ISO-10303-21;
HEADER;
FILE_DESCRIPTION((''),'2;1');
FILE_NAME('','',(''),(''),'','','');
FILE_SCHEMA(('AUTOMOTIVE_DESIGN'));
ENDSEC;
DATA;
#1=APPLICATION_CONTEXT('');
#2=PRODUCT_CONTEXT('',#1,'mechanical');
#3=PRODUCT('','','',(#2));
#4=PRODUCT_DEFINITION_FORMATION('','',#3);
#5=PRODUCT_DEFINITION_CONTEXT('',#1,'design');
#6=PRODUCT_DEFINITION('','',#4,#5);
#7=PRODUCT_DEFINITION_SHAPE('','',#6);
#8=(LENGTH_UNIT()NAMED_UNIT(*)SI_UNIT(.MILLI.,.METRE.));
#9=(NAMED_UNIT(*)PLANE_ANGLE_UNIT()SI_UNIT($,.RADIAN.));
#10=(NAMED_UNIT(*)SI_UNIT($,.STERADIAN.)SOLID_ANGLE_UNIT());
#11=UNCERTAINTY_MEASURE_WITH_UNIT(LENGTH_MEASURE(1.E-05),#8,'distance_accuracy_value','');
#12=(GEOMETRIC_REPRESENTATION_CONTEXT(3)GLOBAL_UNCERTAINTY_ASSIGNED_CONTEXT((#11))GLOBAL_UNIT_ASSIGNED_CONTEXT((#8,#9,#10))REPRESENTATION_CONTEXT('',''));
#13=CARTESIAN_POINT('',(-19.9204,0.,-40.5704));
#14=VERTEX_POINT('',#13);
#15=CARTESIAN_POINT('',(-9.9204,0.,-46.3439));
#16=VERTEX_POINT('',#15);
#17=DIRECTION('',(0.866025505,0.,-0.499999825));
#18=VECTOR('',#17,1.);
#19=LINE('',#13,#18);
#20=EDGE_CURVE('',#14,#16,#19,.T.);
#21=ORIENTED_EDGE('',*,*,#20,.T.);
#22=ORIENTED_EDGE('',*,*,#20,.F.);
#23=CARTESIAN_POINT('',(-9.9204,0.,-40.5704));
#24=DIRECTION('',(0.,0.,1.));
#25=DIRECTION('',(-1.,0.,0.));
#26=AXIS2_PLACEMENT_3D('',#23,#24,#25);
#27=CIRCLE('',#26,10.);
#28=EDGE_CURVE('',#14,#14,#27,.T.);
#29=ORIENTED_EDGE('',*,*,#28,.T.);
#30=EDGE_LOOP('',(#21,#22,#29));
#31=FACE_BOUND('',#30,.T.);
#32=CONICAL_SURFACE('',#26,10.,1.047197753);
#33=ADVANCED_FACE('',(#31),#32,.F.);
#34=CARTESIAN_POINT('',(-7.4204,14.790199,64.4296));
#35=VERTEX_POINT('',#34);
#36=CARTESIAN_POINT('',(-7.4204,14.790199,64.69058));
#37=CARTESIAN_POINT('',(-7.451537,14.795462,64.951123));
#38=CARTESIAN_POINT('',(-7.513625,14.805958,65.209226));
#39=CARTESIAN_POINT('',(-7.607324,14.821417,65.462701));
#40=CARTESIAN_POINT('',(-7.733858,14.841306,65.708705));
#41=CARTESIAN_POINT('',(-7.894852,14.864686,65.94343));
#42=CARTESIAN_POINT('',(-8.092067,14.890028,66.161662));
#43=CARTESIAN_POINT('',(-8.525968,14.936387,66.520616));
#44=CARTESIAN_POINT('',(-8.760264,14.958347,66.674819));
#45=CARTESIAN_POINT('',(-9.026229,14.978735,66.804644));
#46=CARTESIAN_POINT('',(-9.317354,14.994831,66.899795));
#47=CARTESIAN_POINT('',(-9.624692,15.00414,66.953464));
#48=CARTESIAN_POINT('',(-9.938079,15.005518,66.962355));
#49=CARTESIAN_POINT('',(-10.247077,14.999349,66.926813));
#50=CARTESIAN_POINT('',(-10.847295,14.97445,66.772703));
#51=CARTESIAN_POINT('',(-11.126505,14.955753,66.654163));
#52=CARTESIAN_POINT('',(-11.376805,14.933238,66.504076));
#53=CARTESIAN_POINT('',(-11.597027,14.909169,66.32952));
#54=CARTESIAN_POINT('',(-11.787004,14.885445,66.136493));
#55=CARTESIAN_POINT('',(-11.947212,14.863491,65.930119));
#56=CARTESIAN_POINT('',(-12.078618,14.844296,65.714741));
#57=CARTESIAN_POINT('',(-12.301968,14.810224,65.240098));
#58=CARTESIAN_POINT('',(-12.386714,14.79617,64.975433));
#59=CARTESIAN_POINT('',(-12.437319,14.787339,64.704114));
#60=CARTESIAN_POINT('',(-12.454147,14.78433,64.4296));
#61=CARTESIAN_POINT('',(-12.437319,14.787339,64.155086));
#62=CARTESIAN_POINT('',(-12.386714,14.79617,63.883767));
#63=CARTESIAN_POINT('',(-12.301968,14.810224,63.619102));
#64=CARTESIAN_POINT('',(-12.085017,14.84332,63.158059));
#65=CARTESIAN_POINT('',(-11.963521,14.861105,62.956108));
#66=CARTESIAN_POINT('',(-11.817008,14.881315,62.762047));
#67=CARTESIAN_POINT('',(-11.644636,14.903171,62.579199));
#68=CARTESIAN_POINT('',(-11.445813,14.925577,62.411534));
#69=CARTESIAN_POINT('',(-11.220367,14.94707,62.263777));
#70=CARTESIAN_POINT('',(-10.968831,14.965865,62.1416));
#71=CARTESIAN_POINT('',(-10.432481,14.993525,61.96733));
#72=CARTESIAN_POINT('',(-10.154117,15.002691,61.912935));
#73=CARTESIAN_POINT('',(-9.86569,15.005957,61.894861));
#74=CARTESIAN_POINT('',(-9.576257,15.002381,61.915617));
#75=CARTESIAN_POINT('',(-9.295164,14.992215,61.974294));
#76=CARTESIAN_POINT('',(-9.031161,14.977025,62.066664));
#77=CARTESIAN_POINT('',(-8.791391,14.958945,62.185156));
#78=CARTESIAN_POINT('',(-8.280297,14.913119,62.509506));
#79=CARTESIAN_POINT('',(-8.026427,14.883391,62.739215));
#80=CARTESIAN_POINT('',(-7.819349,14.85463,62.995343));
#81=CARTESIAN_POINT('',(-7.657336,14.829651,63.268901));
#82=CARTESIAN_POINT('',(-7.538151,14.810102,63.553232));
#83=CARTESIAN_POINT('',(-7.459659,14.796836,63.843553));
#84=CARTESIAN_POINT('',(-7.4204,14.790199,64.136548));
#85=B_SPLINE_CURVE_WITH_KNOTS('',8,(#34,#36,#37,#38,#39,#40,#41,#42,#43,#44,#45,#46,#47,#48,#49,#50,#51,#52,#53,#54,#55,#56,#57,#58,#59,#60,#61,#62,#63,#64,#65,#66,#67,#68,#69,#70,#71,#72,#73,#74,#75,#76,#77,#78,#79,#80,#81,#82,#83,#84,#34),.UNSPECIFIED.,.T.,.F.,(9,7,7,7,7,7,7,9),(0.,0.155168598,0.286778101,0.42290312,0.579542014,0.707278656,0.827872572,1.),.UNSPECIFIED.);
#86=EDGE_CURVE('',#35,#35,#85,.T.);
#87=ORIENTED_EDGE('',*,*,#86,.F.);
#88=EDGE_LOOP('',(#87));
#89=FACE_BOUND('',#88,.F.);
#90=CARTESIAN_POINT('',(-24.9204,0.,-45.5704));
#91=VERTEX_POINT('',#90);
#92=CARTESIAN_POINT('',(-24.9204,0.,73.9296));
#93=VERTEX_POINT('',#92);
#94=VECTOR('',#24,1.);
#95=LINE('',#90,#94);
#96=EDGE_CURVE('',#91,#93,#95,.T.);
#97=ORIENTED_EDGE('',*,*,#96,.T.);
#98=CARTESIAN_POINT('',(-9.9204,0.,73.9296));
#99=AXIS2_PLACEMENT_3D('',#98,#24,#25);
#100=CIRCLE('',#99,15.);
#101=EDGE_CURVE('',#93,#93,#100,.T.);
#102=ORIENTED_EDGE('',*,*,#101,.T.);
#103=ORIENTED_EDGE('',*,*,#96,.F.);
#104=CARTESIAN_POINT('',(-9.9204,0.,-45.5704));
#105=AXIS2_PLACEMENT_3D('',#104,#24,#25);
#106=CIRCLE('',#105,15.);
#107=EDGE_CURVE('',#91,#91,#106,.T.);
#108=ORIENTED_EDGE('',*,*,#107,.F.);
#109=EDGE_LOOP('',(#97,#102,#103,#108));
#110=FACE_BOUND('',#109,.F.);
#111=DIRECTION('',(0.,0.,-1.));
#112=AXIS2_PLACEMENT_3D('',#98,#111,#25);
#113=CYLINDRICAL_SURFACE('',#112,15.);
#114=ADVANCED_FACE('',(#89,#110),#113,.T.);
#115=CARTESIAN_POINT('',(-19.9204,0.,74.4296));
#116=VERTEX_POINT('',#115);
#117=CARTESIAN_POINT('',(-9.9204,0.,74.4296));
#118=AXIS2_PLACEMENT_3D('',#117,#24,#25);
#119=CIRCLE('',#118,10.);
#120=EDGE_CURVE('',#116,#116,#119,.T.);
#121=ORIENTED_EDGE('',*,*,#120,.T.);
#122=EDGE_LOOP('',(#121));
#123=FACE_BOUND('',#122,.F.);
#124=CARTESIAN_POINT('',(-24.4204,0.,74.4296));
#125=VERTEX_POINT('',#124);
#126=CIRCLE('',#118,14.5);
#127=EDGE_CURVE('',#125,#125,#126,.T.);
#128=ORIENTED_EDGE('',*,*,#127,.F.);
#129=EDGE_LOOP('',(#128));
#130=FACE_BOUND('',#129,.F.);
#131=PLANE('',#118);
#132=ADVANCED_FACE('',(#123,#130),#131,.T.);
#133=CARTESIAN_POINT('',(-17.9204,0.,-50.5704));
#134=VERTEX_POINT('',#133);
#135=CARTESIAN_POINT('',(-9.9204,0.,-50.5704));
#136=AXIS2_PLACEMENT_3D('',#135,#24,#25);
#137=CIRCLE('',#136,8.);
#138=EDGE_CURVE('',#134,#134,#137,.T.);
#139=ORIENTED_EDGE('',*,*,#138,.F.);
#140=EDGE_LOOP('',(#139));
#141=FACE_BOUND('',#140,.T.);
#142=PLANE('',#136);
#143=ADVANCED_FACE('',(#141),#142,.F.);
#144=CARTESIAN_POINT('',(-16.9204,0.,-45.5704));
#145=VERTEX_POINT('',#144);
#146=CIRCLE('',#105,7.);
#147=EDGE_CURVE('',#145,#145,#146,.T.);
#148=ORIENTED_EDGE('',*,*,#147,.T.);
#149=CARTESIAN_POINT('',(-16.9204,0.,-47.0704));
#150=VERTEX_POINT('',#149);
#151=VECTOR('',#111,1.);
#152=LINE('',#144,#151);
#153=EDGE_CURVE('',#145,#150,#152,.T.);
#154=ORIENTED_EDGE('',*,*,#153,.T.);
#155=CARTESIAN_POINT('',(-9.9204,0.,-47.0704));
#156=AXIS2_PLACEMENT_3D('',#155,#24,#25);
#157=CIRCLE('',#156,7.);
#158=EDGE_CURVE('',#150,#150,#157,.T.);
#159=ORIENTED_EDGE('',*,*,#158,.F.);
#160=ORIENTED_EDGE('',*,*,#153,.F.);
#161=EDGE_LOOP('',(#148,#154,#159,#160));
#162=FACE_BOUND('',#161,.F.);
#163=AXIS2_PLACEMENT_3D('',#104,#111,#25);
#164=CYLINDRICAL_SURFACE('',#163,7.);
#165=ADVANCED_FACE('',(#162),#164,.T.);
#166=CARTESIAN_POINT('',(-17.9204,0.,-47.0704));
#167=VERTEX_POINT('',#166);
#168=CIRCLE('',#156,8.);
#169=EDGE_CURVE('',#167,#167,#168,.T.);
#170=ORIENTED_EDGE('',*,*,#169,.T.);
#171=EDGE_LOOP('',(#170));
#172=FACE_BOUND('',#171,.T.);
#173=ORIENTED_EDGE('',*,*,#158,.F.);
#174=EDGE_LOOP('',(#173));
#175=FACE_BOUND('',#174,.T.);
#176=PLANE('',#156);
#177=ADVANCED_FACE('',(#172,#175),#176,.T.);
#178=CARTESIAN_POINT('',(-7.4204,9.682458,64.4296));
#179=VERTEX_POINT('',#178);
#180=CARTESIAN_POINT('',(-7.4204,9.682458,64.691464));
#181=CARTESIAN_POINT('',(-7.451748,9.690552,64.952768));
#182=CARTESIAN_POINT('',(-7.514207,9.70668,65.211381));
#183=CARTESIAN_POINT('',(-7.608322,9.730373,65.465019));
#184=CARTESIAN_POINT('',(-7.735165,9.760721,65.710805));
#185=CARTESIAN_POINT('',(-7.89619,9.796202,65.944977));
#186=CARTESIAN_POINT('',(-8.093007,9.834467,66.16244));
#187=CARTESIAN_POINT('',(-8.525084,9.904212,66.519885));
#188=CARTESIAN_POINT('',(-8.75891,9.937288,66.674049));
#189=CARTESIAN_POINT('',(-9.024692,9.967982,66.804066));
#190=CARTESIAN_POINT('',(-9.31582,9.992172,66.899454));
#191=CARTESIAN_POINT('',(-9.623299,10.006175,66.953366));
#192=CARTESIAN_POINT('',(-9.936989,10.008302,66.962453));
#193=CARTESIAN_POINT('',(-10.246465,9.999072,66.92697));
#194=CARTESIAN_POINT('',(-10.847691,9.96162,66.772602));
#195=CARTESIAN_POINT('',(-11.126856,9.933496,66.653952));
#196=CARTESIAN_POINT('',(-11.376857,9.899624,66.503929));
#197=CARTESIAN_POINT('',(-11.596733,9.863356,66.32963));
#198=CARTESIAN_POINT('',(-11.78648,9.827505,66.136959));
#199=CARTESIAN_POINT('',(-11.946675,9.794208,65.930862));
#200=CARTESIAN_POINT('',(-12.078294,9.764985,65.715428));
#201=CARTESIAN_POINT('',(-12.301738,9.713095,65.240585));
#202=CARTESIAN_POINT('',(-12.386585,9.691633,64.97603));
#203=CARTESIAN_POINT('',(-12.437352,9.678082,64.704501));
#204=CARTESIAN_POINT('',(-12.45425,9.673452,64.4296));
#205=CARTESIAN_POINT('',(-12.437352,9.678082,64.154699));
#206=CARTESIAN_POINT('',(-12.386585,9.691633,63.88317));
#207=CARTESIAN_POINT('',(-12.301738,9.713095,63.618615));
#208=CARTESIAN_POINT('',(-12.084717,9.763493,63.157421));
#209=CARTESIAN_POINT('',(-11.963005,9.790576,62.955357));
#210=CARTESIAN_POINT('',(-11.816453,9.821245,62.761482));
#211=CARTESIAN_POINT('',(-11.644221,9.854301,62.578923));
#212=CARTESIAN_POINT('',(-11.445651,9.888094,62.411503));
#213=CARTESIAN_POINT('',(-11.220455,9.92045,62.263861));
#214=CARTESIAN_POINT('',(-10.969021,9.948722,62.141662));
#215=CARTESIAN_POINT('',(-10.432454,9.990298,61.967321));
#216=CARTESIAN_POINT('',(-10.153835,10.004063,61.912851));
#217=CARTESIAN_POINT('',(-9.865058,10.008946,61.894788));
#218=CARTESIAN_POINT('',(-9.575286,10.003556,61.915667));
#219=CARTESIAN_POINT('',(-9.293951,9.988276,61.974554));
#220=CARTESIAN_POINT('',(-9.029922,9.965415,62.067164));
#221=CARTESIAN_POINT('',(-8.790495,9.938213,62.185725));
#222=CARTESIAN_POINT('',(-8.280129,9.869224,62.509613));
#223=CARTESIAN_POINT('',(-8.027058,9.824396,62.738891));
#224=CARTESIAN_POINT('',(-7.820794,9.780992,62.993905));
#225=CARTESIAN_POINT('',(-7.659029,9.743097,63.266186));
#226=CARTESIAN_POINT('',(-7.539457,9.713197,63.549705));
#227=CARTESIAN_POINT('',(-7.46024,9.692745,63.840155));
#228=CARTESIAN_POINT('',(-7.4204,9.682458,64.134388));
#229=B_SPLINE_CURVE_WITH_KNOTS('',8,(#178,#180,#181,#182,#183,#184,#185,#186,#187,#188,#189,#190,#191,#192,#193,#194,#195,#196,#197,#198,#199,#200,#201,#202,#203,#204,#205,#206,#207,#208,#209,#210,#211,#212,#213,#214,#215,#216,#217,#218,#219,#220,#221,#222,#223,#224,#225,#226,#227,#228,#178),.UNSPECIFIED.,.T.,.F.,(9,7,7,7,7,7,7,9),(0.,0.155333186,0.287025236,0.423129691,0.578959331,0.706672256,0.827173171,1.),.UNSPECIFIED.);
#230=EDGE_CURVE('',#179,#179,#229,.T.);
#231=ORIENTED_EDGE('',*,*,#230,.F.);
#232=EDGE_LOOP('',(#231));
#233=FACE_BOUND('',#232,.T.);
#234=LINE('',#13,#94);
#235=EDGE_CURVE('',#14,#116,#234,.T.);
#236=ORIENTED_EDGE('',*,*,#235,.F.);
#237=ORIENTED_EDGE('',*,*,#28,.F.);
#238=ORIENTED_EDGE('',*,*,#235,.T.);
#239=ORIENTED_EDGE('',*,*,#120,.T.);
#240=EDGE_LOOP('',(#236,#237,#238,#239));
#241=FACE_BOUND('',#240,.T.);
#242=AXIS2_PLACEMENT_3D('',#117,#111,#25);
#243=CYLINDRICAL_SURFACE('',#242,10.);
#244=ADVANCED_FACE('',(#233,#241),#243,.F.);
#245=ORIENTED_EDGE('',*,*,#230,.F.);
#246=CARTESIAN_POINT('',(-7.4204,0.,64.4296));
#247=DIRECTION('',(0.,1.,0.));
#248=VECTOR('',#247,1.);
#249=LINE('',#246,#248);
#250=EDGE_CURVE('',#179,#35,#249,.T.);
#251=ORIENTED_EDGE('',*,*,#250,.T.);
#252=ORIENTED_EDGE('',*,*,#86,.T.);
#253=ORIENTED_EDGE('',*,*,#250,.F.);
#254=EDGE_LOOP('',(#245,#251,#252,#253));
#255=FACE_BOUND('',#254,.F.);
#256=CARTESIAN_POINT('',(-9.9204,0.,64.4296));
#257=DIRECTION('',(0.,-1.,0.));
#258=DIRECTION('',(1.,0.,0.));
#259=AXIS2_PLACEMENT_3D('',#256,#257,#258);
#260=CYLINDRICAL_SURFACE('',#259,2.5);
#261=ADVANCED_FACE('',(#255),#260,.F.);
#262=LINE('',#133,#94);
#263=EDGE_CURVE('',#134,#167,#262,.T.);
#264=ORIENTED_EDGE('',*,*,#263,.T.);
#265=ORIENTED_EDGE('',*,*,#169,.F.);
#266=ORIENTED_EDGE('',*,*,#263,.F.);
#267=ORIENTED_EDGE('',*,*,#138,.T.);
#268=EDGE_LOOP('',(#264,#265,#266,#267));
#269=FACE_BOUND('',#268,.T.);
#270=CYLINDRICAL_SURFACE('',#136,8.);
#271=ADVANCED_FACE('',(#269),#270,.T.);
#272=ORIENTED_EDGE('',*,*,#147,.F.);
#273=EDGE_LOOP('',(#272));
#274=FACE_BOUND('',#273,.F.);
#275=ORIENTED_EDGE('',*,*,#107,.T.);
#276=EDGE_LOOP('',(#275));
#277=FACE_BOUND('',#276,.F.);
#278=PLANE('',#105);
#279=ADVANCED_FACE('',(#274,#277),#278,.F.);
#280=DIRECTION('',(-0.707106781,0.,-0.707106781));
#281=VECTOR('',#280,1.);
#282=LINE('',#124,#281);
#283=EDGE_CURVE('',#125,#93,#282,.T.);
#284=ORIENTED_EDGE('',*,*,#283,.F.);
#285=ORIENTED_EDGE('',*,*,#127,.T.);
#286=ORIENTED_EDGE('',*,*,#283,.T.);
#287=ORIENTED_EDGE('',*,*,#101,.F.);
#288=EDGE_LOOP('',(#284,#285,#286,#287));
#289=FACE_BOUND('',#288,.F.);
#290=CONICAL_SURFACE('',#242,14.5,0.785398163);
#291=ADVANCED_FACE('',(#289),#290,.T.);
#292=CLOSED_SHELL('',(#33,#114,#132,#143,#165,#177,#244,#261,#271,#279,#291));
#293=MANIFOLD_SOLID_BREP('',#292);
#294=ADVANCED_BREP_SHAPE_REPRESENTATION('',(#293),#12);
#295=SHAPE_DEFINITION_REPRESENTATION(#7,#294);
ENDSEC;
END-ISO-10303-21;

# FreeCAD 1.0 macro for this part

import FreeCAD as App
import Part
import Sketcher

V = App.Vector
Q = App.Units.Quantity


def add_polygon(sketch, points):
    """Adds a closed chain of lines whose ends are joined by coincident constraints."""
    first, n = sketch.GeometryCount, len(points)
    for a, b in zip(points, points[1:] + points[:1]):
        sketch.addGeometry(Part.LineSegment(App.Vector(*a, 0), App.Vector(*b, 0)), False)
    for i in range(n):
        sketch.addConstraint(Sketcher.Constraint("Coincident", first + i, 2, first + (i + 1) % n, 1))

doc = App.newDocument("Part")
body = doc.addObject("PartDesign::Body", "Body")

# Sketch on XZ plane
sketch1 = doc.addObject("Sketcher::SketchObject", "Sketch")
body.addObject(sketch1)
sketch1.AttachmentSupport = (doc.XZ_Plane, [""])
sketch1.MapMode = "FlatFace"
add_polygon(sketch1, [(-9.9, -46.3), (-9.9, -50.6), (-17.9, -50.6), (-17.9, -47.1), (-16.9, -47.1), (-16.9, -45.6), (-24.9, -45.6), (-24.9, 73.9), (-24.4, 74.4), (-19.9, 74.4), (-19.9, -40.6)])  # lines 0-10
sketch1.addGeometry(Part.LineSegment(V(-9.9, -50.6, 0), V(-9.9, 74.4, 0)), True)  # axis
sketch1.addConstraint([
    Sketcher.Constraint("Vertical", 0),
    Sketcher.Constraint("Horizontal", 1),
    Sketcher.Constraint("Vertical", 2),
    Sketcher.Constraint("Horizontal", 3),
    Sketcher.Constraint("Vertical", 4),
    Sketcher.Constraint("Horizontal", 5),
    Sketcher.Constraint("Vertical", 6),
    Sketcher.Constraint("Horizontal", 8),
    Sketcher.Constraint("Vertical", 9),
    Sketcher.Constraint("Vertical", 11),
    Sketcher.Constraint("Coincident", 11, 1, 0, 2),
    Sketcher.Constraint("Horizontal", 8, 2, 11, 2),
    Sketcher.Constraint("Equal", 1, 5),
    Sketcher.Constraint("DistanceX", 1, 2, 1, 1, Q("8 mm")),
    Sketcher.Constraint("DistanceX", 3, 1, 3, 2, Q("1 mm")),
    Sketcher.Constraint("DistanceY", 9, 2, 9, 1, Q("115 mm")),
    Sketcher.Constraint("DistanceY", 11, 1, 11, 2, Q("125 mm")),
    Sketcher.Constraint("Angle", 7, Q("45 deg")),
    Sketcher.Constraint("Angle", 10, Q("-30 deg")),
    Sketcher.Constraint("DistanceX", 8, 1, 8, 2, Q("4.5 mm")),
    Sketcher.Constraint("DistanceY", 2, 1, 2, 2, Q("3.5 mm")),
    Sketcher.Constraint("DistanceY", 4, 1, 4, 2, Q("1.5 mm")),
    Sketcher.Constraint("DistanceY", 6, 1, 6, 2, Q("119.5 mm")),
    Sketcher.Constraint("DistanceY", 10, 2, -1, 1, Q("46.344 mm")),
    Sketcher.Constraint("DistanceX", 0, 2, -1, 1, Q("9.9204 mm")),
])
revolution = doc.addObject("PartDesign::Revolution", "Revolution")
body.addObject(revolution)
revolution.Profile = sketch1
revolution.ReferenceAxis = (sketch1, ["Axis0"])
revolution.Angle = 360

# Sketch on XZ plane
sketch2 = doc.addObject("Sketcher::SketchObject", "Sketch001")
body.addObject(sketch2)
sketch2.AttachmentSupport = (doc.XZ_Plane, [""])
sketch2.MapMode = "FlatFace"
sketch2.addGeometry(Part.Circle(V(-9.9, 64.4, 0), V(0, 0, 1), 2.5), False)
sketch2.addConstraint([
    Sketcher.Constraint("Diameter", 0, Q("5 mm")),
    Sketcher.Constraint("DistanceX", 0, 3, -1, 1, Q("9.9204 mm")),
    Sketcher.Constraint("DistanceY", -1, 1, 0, 3, Q("64.4296 mm")),
])
pocket1 = doc.addObject("PartDesign::Pocket", "Pocket")
body.addObject(pocket1)
pocket1.Profile = sketch2
pocket1.Type = "ThroughAll"

doc.recompute()
